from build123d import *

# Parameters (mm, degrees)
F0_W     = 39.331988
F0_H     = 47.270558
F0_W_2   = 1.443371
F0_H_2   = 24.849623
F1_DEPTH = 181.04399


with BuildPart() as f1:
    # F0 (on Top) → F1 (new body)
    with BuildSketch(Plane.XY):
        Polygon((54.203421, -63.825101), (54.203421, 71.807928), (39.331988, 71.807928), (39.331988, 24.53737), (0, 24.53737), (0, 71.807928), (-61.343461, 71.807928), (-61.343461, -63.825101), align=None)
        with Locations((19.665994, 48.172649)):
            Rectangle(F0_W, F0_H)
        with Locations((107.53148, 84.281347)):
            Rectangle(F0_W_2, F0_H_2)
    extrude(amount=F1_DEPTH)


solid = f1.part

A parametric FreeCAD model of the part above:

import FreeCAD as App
import Part
import Sketcher

V = App.Vector

doc = App.newDocument("Part")
body = doc.addObject("PartDesign::Body", "Body")
body.AllowCompound = True

# Sketch on XY plane
sketch1 = body.newObject("Sketcher::SketchObject", "Sketch")
sketch1.AttachmentSupport = (doc.getObject("XY_Plane"), [""])
sketch1.MapMode = "FlatFace"
sketch1.addGeometry([
    Part.LineSegment(V(54.2, -63.8, 0), V(54.2, 71.8, 0)),  # 0
    Part.LineSegment(V(54.2, 71.8, 0), V(-61.3, 71.8, 0)),  # 1
    Part.LineSegment(V(-61.3, 71.8, 0), V(-61.3, -63.8, 0)),  # 2
    Part.LineSegment(V(-61.3, -63.8, 0), V(54.2, -63.8, 0)),  # 3
    Part.LineSegment(V(106.8, 96.7, 0), V(106.8, 71.9, 0)),  # 4
    Part.LineSegment(V(106.8, 71.9, 0), V(108.3, 71.9, 0)),  # 5
    Part.LineSegment(V(108.3, 71.9, 0), V(108.3, 96.7, 0)),  # 6
    Part.LineSegment(V(108.3, 96.7, 0), V(106.8, 96.7, 0)),  # 7
], False)
sketch1.addConstraint([
    Sketcher.Constraint("Coincident", 0, 2, 1, 1),
    Sketcher.Constraint("Coincident", 1, 2, 2, 1),
    Sketcher.Constraint("Coincident", 2, 2, 3, 1),
    Sketcher.Constraint("Coincident", 3, 2, 0, 1),
    Sketcher.Constraint("Coincident", 4, 2, 5, 1),
    Sketcher.Constraint("Coincident", 5, 2, 6, 1),
    Sketcher.Constraint("Coincident", 6, 2, 7, 1),
    Sketcher.Constraint("Coincident", 7, 2, 4, 1),
    Sketcher.Constraint("Vertical", 0),
    Sketcher.Constraint("Horizontal", 1),
    Sketcher.Constraint("Vertical", 2),
    Sketcher.Constraint("Horizontal", 3),
    Sketcher.Constraint("Vertical", 4),
    Sketcher.Constraint("Horizontal", 5),
    Sketcher.Constraint("Vertical", 6),
    Sketcher.Constraint("Horizontal", 7),
    Sketcher.Constraint("DistanceX", 1, 2, 1, 1, 115.546882),
    Sketcher.Constraint("DistanceX", 5, 1, 5, 2, 1.443371),
    Sketcher.Constraint("DistanceY", 0, 1, 0, 2, 135.633029),
    Sketcher.Constraint("DistanceY", 2, 2, -1, 1, 63.825101),
    Sketcher.Constraint("DistanceY", 4, 2, 4, 1, 24.849623),
    Sketcher.Constraint("DistanceX", -1, 1, 0, 2, 54.203421),
    Sketcher.Constraint("DistanceY", -1, 1, 6, 2, 96.706159),
    Sketcher.Constraint("DistanceX", -1, 1, 4, 2, 106.809794),
])
pad1 = body.newObject("PartDesign::Pad", "Pad")
pad1.Profile = sketch1
pad1.Length = 181.04399

doc.recompute()
